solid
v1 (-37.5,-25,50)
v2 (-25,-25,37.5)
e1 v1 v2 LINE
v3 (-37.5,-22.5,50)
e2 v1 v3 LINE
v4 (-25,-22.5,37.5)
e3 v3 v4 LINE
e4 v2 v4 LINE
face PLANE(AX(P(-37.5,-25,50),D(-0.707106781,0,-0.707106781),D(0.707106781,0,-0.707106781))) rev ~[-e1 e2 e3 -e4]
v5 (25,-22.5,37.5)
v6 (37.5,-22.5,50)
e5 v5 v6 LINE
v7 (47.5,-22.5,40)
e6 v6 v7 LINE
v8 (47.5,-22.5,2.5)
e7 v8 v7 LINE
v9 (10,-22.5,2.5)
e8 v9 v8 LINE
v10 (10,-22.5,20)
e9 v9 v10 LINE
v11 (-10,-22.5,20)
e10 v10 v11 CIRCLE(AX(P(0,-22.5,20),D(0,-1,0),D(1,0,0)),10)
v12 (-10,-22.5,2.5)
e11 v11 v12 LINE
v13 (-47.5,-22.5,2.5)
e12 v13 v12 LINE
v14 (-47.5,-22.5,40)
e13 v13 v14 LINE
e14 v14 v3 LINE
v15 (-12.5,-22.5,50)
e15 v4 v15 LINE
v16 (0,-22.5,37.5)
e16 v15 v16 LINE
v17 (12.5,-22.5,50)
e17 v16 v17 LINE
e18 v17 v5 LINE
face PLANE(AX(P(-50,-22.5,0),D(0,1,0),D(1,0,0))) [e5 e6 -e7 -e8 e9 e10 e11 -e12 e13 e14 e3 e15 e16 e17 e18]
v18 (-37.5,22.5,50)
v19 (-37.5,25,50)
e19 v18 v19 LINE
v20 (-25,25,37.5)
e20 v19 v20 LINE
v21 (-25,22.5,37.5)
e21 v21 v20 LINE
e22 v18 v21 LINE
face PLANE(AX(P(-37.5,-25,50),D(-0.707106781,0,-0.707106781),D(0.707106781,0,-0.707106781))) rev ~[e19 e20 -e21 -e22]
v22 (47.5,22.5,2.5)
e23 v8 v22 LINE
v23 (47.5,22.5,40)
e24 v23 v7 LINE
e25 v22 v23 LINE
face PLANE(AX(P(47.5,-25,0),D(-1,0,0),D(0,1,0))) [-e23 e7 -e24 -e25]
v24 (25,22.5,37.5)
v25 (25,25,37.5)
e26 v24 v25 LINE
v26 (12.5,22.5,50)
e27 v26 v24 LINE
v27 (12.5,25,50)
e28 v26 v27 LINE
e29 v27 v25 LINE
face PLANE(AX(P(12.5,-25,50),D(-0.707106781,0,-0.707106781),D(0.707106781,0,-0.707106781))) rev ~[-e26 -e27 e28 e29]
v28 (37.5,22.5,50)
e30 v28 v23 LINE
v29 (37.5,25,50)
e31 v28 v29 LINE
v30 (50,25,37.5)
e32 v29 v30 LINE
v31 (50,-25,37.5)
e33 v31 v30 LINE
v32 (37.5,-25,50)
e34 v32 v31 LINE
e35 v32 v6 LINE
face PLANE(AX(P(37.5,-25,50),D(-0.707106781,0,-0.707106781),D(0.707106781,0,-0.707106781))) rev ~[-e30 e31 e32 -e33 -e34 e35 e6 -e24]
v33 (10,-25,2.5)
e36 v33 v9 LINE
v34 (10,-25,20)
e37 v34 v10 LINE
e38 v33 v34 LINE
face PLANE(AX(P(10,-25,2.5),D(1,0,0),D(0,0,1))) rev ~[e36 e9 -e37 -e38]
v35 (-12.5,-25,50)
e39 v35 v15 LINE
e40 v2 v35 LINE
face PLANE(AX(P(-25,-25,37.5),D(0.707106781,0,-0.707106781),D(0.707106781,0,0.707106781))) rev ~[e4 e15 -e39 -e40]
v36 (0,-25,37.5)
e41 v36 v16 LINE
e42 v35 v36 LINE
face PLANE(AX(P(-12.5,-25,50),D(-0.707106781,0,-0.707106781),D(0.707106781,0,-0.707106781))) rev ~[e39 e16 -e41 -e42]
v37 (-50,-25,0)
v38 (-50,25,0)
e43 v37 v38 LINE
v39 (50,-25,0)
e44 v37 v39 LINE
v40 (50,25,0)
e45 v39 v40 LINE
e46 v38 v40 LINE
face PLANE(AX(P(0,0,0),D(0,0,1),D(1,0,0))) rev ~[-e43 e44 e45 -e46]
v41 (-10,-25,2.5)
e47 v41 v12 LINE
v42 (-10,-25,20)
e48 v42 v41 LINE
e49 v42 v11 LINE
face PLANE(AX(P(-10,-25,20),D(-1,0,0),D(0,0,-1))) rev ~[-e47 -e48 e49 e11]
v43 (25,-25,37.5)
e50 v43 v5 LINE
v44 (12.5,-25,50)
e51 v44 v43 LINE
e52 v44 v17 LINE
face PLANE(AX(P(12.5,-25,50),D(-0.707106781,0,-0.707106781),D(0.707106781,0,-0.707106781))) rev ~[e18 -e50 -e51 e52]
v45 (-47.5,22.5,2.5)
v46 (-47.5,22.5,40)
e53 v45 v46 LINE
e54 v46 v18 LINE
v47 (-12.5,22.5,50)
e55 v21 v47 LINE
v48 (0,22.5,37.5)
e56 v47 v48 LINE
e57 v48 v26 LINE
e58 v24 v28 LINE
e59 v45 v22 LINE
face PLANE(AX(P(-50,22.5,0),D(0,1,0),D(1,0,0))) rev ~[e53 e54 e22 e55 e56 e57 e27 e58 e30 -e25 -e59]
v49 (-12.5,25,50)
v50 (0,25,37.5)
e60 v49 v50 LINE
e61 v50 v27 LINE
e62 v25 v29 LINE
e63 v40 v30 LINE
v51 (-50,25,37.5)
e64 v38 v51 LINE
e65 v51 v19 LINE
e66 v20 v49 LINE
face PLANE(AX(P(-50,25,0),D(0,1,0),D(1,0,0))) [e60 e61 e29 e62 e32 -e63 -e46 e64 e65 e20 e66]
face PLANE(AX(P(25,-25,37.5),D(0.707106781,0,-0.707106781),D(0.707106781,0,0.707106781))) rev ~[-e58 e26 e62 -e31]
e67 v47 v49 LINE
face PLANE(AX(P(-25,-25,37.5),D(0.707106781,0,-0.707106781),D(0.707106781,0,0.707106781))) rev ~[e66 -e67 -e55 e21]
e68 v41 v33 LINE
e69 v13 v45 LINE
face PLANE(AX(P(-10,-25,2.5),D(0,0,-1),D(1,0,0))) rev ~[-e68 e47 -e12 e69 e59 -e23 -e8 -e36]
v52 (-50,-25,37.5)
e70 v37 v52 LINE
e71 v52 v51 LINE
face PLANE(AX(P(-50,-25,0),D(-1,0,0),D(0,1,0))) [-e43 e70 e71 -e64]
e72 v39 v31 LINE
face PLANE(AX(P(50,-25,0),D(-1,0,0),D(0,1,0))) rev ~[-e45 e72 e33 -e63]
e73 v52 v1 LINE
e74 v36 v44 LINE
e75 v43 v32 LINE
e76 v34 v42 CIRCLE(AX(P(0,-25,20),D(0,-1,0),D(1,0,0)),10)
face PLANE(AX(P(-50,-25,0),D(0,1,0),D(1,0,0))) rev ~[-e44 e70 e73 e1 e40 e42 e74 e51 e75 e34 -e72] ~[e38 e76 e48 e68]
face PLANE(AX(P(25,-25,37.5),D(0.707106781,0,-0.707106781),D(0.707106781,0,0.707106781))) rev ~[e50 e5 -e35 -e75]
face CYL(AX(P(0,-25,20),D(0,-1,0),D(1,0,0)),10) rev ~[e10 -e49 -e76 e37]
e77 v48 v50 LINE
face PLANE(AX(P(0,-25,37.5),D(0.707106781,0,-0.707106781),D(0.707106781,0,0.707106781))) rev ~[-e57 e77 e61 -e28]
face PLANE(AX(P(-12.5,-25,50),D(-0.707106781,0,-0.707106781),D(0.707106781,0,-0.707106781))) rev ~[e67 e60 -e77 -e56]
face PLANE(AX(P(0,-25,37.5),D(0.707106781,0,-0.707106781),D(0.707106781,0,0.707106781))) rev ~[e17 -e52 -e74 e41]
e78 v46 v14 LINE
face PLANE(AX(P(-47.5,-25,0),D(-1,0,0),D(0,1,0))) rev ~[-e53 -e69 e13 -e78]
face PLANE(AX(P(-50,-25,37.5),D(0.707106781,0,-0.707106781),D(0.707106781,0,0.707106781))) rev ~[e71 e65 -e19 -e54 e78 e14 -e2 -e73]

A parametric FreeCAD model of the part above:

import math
import FreeCAD as App
import Part
import Sketcher

V = App.Vector


def faces_at(feature, points):
    """Names of the faces that lie closest to the given points."""
    faces = feature.Shape.Faces
    near = lambda p: min(range(len(faces)), key=lambda i: faces[i].distToShape(Part.Vertex(*p))[0])
    return sorted({f"Face{near(p) + 1}" for p in points})

doc = App.newDocument("Part")
body = doc.addObject("PartDesign::Body", "Body")

# Sketch on XY plane
sketch1 = body.newObject("Sketcher::SketchObject", "Sketch")
sketch1.AttachmentSupport = (doc.getObject("XY_Plane"), [""])
sketch1.MapMode = "FlatFace"
sketch1.addGeometry([
    Part.LineSegment(V(-50, 25, 0), V(-50, -25, 0)),
    Part.LineSegment(V(-50, -25, 0), V(50, -25, 0)),
    Part.LineSegment(V(50, -25, 0), V(50, 25, 0)),
    Part.LineSegment(V(50, 25, 0), V(-50, 25, 0)),
], False)
sketch1.addConstraint([
    Sketcher.Constraint("Coincident", 0, 2, 1, 1),
    Sketcher.Constraint("Coincident", 1, 2, 2, 1),
    Sketcher.Constraint("Coincident", 2, 2, 3, 1),
    Sketcher.Constraint("Coincident", 3, 2, 0, 1),
    Sketcher.Constraint("Vertical", 0),
    Sketcher.Constraint("Horizontal", 1),
    Sketcher.Constraint("Vertical", 2),
    Sketcher.Constraint("Horizontal", 3),
    Sketcher.Constraint("Symmetric", 0, 2, 2, 2, -1, 1),
    Sketcher.Constraint("DistanceX", 1, 1, 1, 2, 100.0),
    Sketcher.Constraint("DistanceY", 0, 2, 0, 1, 50.0),
])
pad1 = body.newObject("PartDesign::Pad", "Pad")
pad1.Profile = sketch1
pad1.Length = 50

# Sketch on XZ plane
sketch2 = body.newObject("Sketcher::SketchObject", "Sketch001")
sketch2.AttachmentSupport = (doc.getObject("XZ_Plane"), [""])
sketch2.MapMode = "FlatFace"
sketch2.AttachmentOffset = App.Placement(V(0, 0, 25), App.Rotation())
sketch2.addGeometry([
    Part.LineSegment(V(-50, 50, 0), V(-50, 37.5, 0)),  # 0
    Part.LineSegment(V(-50, 37.5, 0), V(-37.5, 50, 0)),  # 1
    Part.LineSegment(V(-37.5, 50, 0), V(-50, 50, 0)),  # 2
    Part.LineSegment(V(-12.5, 50, 0), V(-37.5, 50, 0)),  # 3
    Part.LineSegment(V(-37.5, 50, 0), V(-25, 37.5, 0)),  # 4
    Part.LineSegment(V(-25, 37.5, 0), V(-12.5, 50, 0)),  # 5
    Part.LineSegment(V(12.5, 50, 0), V(-12.5, 50, 0)),  # 6
    Part.LineSegment(V(-12.5, 50, 0), V(0, 37.5, 0)),  # 7
    Part.LineSegment(V(0, 37.5, 0), V(12.5, 50, 0)),  # 8
    Part.LineSegment(V(37.5, 50, 0), V(12.5, 50, 0)),  # 9
    Part.LineSegment(V(12.5, 50, 0), V(25, 37.5, 0)),  # 10
    Part.LineSegment(V(25, 37.5, 0), V(37.5, 50, 0)),  # 11
    Part.LineSegment(V(37.5, 50, 0), V(50, 37.5, 0)),  # 12
    Part.LineSegment(V(50, 37.5, 0), V(50, 50, 0)),  # 13
    Part.LineSegment(V(50, 50, 0), V(37.5, 50, 0)),  # 14
], False)
sketch2.addConstraint([
    Sketcher.Constraint("Coincident", 0, 2, 1, 1),
    Sketcher.Constraint("Coincident", 1, 2, 2, 1),
    Sketcher.Constraint("Coincident", 2, 2, 0, 1),
    Sketcher.Constraint("Coincident", 3, 2, 4, 1),
    Sketcher.Constraint("Coincident", 4, 2, 5, 1),
    Sketcher.Constraint("Coincident", 5, 2, 3, 1),
    Sketcher.Constraint("Coincident", 6, 2, 7, 1),
    Sketcher.Constraint("Coincident", 7, 2, 8, 1),
    Sketcher.Constraint("Coincident", 8, 2, 6, 1),
    Sketcher.Constraint("Coincident", 9, 2, 10, 1),
    Sketcher.Constraint("Coincident", 10, 2, 11, 1),
    Sketcher.Constraint("Coincident", 11, 2, 9, 1),
    Sketcher.Constraint("Coincident", 12, 2, 13, 1),
    Sketcher.Constraint("Coincident", 13, 2, 14, 1),
    Sketcher.Constraint("Coincident", 14, 2, 12, 1),
    Sketcher.Constraint("Vertical", 0),
    Sketcher.Constraint("Horizontal", 2),
    Sketcher.Constraint("Horizontal", 3),
    Sketcher.Constraint("Horizontal", 6),
    Sketcher.Constraint("Horizontal", 9),
    Sketcher.Constraint("Vertical", 13),
    Sketcher.Constraint("Horizontal", 14),
    Sketcher.Constraint("Coincident", 3, 2, 1, 2),
    Sketcher.Constraint("Coincident", 6, 2, 5, 2),
    Sketcher.Constraint("Coincident", 9, 2, 8, 2),
    Sketcher.Constraint("Coincident", 14, 2, 11, 2),
    Sketcher.Constraint("Symmetric", 4, 2, 10, 2, -2),
    Sketcher.Constraint("Symmetric", 0, 2, 12, 2, -2),
    Sketcher.Constraint("PointOnObject", 7, 2, -2),
    Sketcher.Constraint("Perpendicular", 1, 4),
    Sketcher.Constraint("Perpendicular", 4, 5),
    Sketcher.Constraint("Perpendicular", 5, 7),
    Sketcher.Constraint("Perpendicular", 7, 8),
    Sketcher.Constraint("Perpendicular", 10, 11),
    Sketcher.Constraint("Horizontal", 0, 2, 4, 2),
    Sketcher.Constraint("Horizontal", 4, 2, 7, 2),
    Sketcher.Constraint("Equal", 2, 14),
    Sketcher.Constraint("DistanceX", 3, 2, 3, 1, 25.0),
    Sketcher.Constraint("DistanceY", -1, 1, 1, 2, 50.0),
])
pocket1 = body.newObject("PartDesign::Pocket", "Pocket")
pocket1.Profile = sketch2
pocket1.Type = "ThroughAll"
doc.recompute()

thickness = body.newObject("PartDesign::Thickness", "Thickness")
thickness.Base = (pocket1, faces_at(pocket1, [
    (-31.25, 0, 43.75),
    (-6.25, 0, 43.75),
    (18.75, 0, 43.75),
    (43.75, 0, 43.75),
    (31.25, 0, 43.75),
    (6.25, 0, 43.75),
    (-18.75, 0, 43.75),
    (-43.75, 0, 43.75),
]))
thickness.Value = 2.5
thickness.Reversed = True
thickness.Join = "Arc"

# Sketch on XZ plane
sketch3 = body.newObject("Sketcher::SketchObject", "Sketch002")
sketch3.AttachmentSupport = (doc.getObject("XZ_Plane"), [""])
sketch3.MapMode = "FlatFace"
sketch3.AttachmentOffset = App.Placement(V(0, 0, 25), App.Rotation())
sketch3.addGeometry([
    Part.ArcOfCircle(Part.Circle(V(0, 20, 0), V(0, 0, 1), 10), math.radians(0), math.radians(180)),
    Part.LineSegment(V(-10, 20, 0), V(-10, 2.5, 0)),
    Part.LineSegment(V(-10, 2.5, 0), V(10, 2.5, 0)),
    Part.LineSegment(V(10, 2.5, 0), V(10, 20, 0)),
], False)
sketch3.addConstraint([
    Sketcher.Constraint("Tangent", 0, 2, 1, 1),
    Sketcher.Constraint("Coincident", 1, 2, 2, 1),
    Sketcher.Constraint("Coincident", 2, 2, 3, 1),
    Sketcher.Constraint("Tangent", 3, 2, 0, 1),
    Sketcher.Constraint("Vertical", 1),
    Sketcher.Constraint("Horizontal", 2),
    Sketcher.Constraint("Vertical", 3),
    Sketcher.Constraint("PointOnObject", 0, 3, -2),
    Sketcher.Constraint("Radius", 0, 10.0),
    Sketcher.Constraint("DistanceY", 1, 2, 1, 1, 17.5),
    Sketcher.Constraint("DistanceY", -1, 1, 0, 3, 20.0),
])
pocket2 = body.newObject("PartDesign::Pocket", "Pocket001")
pocket2.Profile = sketch3
pocket2.Length = 2.5

doc.recompute()
